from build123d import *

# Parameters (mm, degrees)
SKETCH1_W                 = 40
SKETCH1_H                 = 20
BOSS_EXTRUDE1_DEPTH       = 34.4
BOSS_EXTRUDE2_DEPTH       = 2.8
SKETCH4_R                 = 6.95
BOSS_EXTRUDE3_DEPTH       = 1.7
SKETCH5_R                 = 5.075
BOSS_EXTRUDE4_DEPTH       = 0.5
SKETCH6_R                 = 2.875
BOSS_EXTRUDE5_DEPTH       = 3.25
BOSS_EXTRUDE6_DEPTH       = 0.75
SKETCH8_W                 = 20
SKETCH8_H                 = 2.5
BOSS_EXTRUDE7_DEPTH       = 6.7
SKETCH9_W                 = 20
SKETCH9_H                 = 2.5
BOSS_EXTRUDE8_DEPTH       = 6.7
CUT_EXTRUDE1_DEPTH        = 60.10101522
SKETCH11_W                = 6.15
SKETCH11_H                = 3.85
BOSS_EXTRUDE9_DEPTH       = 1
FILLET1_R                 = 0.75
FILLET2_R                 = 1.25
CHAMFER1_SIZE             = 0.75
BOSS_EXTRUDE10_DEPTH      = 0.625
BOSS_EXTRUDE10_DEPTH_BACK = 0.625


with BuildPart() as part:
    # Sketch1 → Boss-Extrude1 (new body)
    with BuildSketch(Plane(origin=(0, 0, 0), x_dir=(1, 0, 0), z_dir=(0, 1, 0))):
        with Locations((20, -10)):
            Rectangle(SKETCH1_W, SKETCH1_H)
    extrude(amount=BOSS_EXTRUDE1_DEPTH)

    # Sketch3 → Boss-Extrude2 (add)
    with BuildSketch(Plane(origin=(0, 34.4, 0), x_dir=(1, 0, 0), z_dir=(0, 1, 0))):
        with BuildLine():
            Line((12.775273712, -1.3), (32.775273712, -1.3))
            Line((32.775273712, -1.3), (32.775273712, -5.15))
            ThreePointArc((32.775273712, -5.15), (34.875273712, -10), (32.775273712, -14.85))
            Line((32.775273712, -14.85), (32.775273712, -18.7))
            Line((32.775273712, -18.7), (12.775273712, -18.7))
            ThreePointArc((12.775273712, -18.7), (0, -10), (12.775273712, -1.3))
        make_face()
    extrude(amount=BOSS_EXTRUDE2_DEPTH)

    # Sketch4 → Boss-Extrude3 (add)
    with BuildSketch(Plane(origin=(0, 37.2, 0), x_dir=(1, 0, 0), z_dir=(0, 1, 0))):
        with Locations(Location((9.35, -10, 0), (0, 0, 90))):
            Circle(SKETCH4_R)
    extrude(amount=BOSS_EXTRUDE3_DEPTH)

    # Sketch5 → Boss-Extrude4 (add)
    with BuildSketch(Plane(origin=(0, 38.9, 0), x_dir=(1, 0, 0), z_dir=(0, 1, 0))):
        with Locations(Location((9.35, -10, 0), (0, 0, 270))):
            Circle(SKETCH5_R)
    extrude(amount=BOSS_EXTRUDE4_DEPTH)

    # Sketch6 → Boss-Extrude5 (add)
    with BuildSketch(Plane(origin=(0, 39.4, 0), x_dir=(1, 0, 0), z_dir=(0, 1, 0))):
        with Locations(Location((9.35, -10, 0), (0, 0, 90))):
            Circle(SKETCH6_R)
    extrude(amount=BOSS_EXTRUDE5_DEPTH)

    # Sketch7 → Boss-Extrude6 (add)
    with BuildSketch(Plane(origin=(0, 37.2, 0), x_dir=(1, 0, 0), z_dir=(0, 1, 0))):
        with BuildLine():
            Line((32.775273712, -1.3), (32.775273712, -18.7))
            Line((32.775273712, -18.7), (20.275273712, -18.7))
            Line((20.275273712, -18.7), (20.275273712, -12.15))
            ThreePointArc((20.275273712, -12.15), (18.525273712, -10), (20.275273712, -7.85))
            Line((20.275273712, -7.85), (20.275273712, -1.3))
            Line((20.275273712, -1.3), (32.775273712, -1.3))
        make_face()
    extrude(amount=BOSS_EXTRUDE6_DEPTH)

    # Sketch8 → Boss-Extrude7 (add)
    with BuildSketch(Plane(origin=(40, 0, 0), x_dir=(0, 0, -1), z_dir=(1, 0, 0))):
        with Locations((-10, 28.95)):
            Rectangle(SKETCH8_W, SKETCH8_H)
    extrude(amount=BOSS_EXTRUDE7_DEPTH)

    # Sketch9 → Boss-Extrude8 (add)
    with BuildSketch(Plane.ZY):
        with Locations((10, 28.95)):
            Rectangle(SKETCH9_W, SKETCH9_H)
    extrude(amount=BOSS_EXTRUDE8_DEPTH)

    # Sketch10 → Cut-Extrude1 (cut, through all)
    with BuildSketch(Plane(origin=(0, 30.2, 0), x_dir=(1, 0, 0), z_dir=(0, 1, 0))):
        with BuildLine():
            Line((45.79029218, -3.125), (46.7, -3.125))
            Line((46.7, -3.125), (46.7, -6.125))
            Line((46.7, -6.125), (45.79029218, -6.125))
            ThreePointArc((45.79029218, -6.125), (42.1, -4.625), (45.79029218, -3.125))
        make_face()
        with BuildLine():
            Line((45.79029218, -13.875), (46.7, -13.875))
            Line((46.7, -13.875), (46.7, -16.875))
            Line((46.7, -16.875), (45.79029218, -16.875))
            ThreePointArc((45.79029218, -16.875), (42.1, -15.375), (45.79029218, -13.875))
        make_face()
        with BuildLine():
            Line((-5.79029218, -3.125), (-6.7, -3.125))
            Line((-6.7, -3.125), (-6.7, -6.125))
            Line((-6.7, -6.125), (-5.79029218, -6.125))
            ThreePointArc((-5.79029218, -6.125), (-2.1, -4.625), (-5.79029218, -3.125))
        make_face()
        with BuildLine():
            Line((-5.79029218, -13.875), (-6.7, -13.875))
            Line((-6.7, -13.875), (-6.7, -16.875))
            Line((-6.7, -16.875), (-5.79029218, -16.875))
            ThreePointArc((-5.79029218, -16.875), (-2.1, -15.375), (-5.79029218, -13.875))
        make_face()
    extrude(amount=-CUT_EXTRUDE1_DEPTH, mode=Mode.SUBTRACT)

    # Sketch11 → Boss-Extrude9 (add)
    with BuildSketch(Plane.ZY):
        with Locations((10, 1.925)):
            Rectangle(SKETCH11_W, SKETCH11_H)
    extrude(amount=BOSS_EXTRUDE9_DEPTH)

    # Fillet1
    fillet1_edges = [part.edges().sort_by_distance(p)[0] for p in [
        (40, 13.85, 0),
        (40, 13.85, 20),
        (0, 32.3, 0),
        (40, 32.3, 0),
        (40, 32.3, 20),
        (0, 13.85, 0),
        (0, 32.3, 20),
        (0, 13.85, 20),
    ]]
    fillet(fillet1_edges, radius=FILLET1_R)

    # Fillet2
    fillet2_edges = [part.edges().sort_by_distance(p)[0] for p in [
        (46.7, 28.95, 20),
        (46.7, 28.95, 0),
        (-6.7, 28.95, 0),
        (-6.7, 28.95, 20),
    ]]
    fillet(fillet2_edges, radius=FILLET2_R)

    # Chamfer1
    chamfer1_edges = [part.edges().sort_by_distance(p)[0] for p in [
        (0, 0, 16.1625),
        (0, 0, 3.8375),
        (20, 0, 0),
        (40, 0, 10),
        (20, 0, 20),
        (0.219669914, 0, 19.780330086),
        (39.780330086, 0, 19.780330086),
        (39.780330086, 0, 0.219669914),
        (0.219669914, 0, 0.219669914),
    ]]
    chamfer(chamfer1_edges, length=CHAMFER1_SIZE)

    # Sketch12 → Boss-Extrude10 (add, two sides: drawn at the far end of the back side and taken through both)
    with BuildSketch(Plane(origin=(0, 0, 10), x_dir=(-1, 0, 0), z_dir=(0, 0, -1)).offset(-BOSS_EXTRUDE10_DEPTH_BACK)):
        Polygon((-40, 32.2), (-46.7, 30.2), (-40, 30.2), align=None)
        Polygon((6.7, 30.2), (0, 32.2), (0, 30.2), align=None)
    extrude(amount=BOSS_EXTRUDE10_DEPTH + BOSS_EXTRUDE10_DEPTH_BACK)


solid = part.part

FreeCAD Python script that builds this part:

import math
import FreeCAD as App
import Part
import Sketcher
from FreeCAD import Vector
Q = App.Units.Quantity


def edges_at(feature, points):
    """Names of the edges that pass closest to the given points."""
    edges = feature.Shape.Edges
    near = lambda p: min(range(len(edges)), key=lambda i: edges[i].distToShape(Part.Vertex(*p))[0])
    return sorted({f"Edge{near(p) + 1}" for p in points})


def add_polygon(sketch, points):
    """Adds a closed chain of lines whose ends are joined by coincident constraints."""
    first, n = sketch.GeometryCount, len(points)
    for a, b in zip(points, points[1:] + points[:1]):
        sketch.addGeometry(Part.LineSegment(App.Vector(*a, 0), App.Vector(*b, 0)), False)
    for i in range(n):
        sketch.addConstraint(Sketcher.Constraint("Coincident", first + i, 2, first + (i + 1) % n, 1))

doc = App.newDocument("Part")
params = doc.addObject("Spreadsheet::Sheet", "Params")
for row, (alias, value) in enumerate([
    ("sketch1_width", "40 mm"),
    ("sketch1_height", "20 mm"),
    ("pad1_length", "34.4 mm"),
    ("sketch2_width", "20 mm"),
    ("sketch2_radius", "9.35 mm"),
    ("sketch2_height", "3.85 mm"),
    ("pad2_length", "2.8 mm"),
    ("sketch3_diameter", "13.9 mm"),
    ("pad3_length", "1.7 mm"),
    ("sketch4_diameter", "10.15 mm"),
    ("pad4_length", "0.5 mm"),
    ("sketch5_diameter", "5.75 mm"),
    ("pad5_length", "3.25 mm"),
    ("sketch6_width", "12.5 mm"),
    ("sketch6_height", "17.4 mm"),
    ("sketch6_height2", "6.55 mm"),
    ("pad6_length", "0.75 mm"),
    ("sketch7_height", "20 mm"),
    ("sketch7_width", "2.5 mm"),
    ("pad7_length", "6.7 mm"),
    ("sketch8_height", "20 mm"),
    ("sketch8_width", "2.5 mm"),
    ("pad8_length", "6.7 mm"),
    ("sketch9_height", "3 mm"),
    ("sketch9_radius", "2.15 mm"),
    ("sketch10_width", "3.85 mm"),
    ("sketch10_height", "6.15 mm"),
    ("pad9_length", "1 mm"),
    ("fillet_radius", "0.75 mm"),
    ("fillet2_radius", "1.25 mm"),
    ("chamfer_size", "0.75 mm"),
    ("sketch11_height", "2 mm"),
    ("sketch11_width", "6.7 mm"),
    ("pad10_length", "0.625 mm"),
    ("pad10_length2", "0.625 mm"),
], start=1):
    params.set(f"A{row}", alias)
    params.set(f"B{row}", "=" + value)
    params.setAlias(f"B{row}", alias)

body = doc.addObject("PartDesign::Body", "Body")

sketch1 = body.newObject("Sketcher::SketchObject", "Sketch")
sketch1.AttachmentSupport = (doc.getObject("XZ_Plane"), [""])
sketch1.MapMode = "FlatFace"
add_polygon(sketch1, [(0, 0), (0, 20), (40, 20), (40, 0)])
sketch1.addConstraint([
    Sketcher.Constraint("Vertical", 0),
    Sketcher.Constraint("Horizontal", 1),
    Sketcher.Constraint("Vertical", 2),
    Sketcher.Constraint("Horizontal", 3),
    Sketcher.Constraint("Coincident", 3, 2, -1, 1),
    Sketcher.Constraint("DistanceX", 1, 1, 1, 2, Q("40 mm")),
    Sketcher.Constraint("DistanceY", 0, 1, 0, 2, Q("20 mm")),
])
sketch1.setExpression("Constraints[9]", "Params.sketch1_width")
sketch1.setExpression("Constraints[10]", "Params.sketch1_height")
pad1 = body.newObject("PartDesign::Pad", "Pad")
pad1.Profile = sketch1
pad1.setExpression("Length", "Params.pad1_length")
pad1.Reversed = True

sketch2 = body.newObject("Sketcher::SketchObject", "Sketch001")
sketch2.AttachmentSupport = (doc.getObject("XZ_Plane"), [""])
sketch2.MapMode = "FlatFace"
sketch2.AttachmentOffset = App.Placement(Vector(0, 0, -34.4), App.Rotation())
sketch2.addGeometry([
    Part.LineSegment(Vector(32.775274, 1.3, 0), Vector(12.775274, 1.3, 0)),
    Part.ArcOfCircle(Part.Circle(Vector(9.35, 10, 0), Vector(0, 0, 1), 9.35), math.radians(68.509963), math.radians(291.490037)),
    Part.LineSegment(Vector(12.775274, 18.7, 0), Vector(32.775274, 18.7, 0)),
    Part.LineSegment(Vector(32.775274, 18.7, 0), Vector(32.775274, 14.85, 0)),
    Part.ArcOfCircle(Part.Circle(Vector(28.224678, 10, 0), Vector(0, 0, 1), 6.650595), math.radians(-46.824228), math.radians(46.824228)),
    Part.LineSegment(Vector(32.775274, 5.15, 0), Vector(32.775274, 1.3, 0)),
], False)
sketch2.addConstraint([
    Sketcher.Constraint("Coincident", 0, 2, 1, 2),
    Sketcher.Constraint("Coincident", 1, 1, 2, 1),
    Sketcher.Constraint("Coincident", 2, 2, 3, 1),
    Sketcher.Constraint("Coincident", 3, 2, 4, 2),
    Sketcher.Constraint("Coincident", 4, 1, 5, 1),
    Sketcher.Constraint("Coincident", 5, 2, 0, 1),
    Sketcher.Constraint("Horizontal", 0),
    Sketcher.Constraint("Horizontal", 2),
    Sketcher.Constraint("Vertical", 3),
    Sketcher.Constraint("Vertical", 5),
    Sketcher.Constraint("Horizontal", 1, 3, 4, 3),
    Sketcher.Constraint("Vertical", 0, 2, 1, 1),
    Sketcher.Constraint("Vertical", 3, 2, 4, 1),
    Sketcher.Constraint("DistanceX", 0, 2, 0, 1, Q("20 mm")),
    Sketcher.Constraint("Radius", 1, Q("9.35 mm")),
    Sketcher.Constraint("DistanceY", -1, 1, 1, 3, Q("10 mm")),
    Sketcher.Constraint("DistanceY", 3, 2, 3, 1, Q("3.85 mm")),
    Sketcher.Constraint("DistanceY", -1, 1, 0, 2, Q("1.3 mm")),
    Sketcher.Constraint("DistanceX", -1, 1, 1, 3, Q("9.35 mm")),
    Sketcher.Constraint("Radius", 4, Q("6.650595 mm")),
])
sketch2.setExpression("Constraints[13]", "Params.sketch2_width")
sketch2.setExpression("Constraints[14]", "Params.sketch2_radius")
sketch2.setExpression("Constraints[16]", "Params.sketch2_height")
pad2 = body.newObject("PartDesign::Pad", "Pad001")
pad2.Profile = sketch2
pad2.setExpression("Length", "Params.pad2_length")
pad2.Reversed = True

sketch3 = body.newObject("Sketcher::SketchObject", "Sketch002")
sketch3.AttachmentSupport = (doc.getObject("XZ_Plane"), [""])
sketch3.MapMode = "FlatFace"
sketch3.AttachmentOffset = App.Placement(Vector(0, 0, -37.2), App.Rotation())
sketch3.addGeometry(Part.Circle(Vector(9.35, 10, 0), Vector(0, 0, 1), 6.95), False)
sketch3.addConstraint([
    Sketcher.Constraint("Diameter", 0, Q("13.9 mm")),
    Sketcher.Constraint("DistanceY", -1, 1, 0, 3, Q("10 mm")),
    Sketcher.Constraint("DistanceX", -1, 1, 0, 3, Q("9.35 mm")),
])
sketch3.setExpression("Constraints[0]", "Params.sketch3_diameter")
pad3 = body.newObject("PartDesign::Pad", "Pad002")
pad3.Profile = sketch3
pad3.setExpression("Length", "Params.pad3_length")
pad3.Reversed = True

sketch4 = body.newObject("Sketcher::SketchObject", "Sketch003")
sketch4.AttachmentSupport = (doc.getObject("XZ_Plane"), [""])
sketch4.MapMode = "FlatFace"
sketch4.AttachmentOffset = App.Placement(Vector(0, 0, -38.9), App.Rotation())
sketch4.addGeometry(Part.Circle(Vector(9.35, 10, 0), Vector(0, 0, 1), 5.075), False)
sketch4.addConstraint([
    Sketcher.Constraint("Diameter", 0, Q("10.15 mm")),
    Sketcher.Constraint("DistanceY", -1, 1, 0, 3, Q("10 mm")),
    Sketcher.Constraint("DistanceX", -1, 1, 0, 3, Q("9.35 mm")),
])
sketch4.setExpression("Constraints[0]", "Params.sketch4_diameter")
pad4 = body.newObject("PartDesign::Pad", "Pad003")
pad4.Profile = sketch4
pad4.setExpression("Length", "Params.pad4_length")
pad4.Reversed = True

sketch5 = body.newObject("Sketcher::SketchObject", "Sketch004")
sketch5.AttachmentSupport = (doc.getObject("XZ_Plane"), [""])
sketch5.MapMode = "FlatFace"
sketch5.AttachmentOffset = App.Placement(Vector(0, 0, -39.4), App.Rotation())
sketch5.addGeometry(Part.Circle(Vector(9.35, 10, 0), Vector(0, 0, 1), 2.875), False)
sketch5.addConstraint([
    Sketcher.Constraint("Diameter", 0, Q("5.75 mm")),
    Sketcher.Constraint("DistanceY", -1, 1, 0, 3, Q("10 mm")),
    Sketcher.Constraint("DistanceX", -1, 1, 0, 3, Q("9.35 mm")),
])
sketch5.setExpression("Constraints[0]", "Params.sketch5_diameter")
pad5 = body.newObject("PartDesign::Pad", "Pad004")
pad5.Profile = sketch5
pad5.setExpression("Length", "Params.pad5_length")
pad5.Reversed = True

sketch6 = body.newObject("Sketcher::SketchObject", "Sketch005")
sketch6.AttachmentSupport = (doc.getObject("XZ_Plane"), [""])
sketch6.MapMode = "FlatFace"
sketch6.AttachmentOffset = App.Placement(Vector(0, 0, -37.2), App.Rotation())
sketch6.addGeometry([
    Part.LineSegment(Vector(32.775274, 18.7, 0), Vector(32.775274, 1.3, 0)),
    Part.LineSegment(Vector(32.775274, 1.3, 0), Vector(20.275274, 1.3, 0)),
    Part.LineSegment(Vector(20.275274, 1.3, 0), Vector(20.275274, 7.85, 0)),
    Part.ArcOfCircle(Part.Circle(Vector(20.720988, 10, 0), Vector(0, 0, 1), 2.195714), math.radians(101.712027), math.radians(258.287973)),
    Part.LineSegment(Vector(20.275274, 12.15, 0), Vector(20.275274, 18.7, 0)),
    Part.LineSegment(Vector(20.275274, 18.7, 0), Vector(32.775274, 18.7, 0)),
], False)
sketch6.addConstraint([
    Sketcher.Constraint("Coincident", 0, 2, 1, 1),
    Sketcher.Constraint("Coincident", 1, 2, 2, 1),
    Sketcher.Constraint("Coincident", 2, 2, 3, 2),
    Sketcher.Constraint("Coincident", 3, 1, 4, 1),
    Sketcher.Constraint("Coincident", 4, 2, 5, 1),
    Sketcher.Constraint("Coincident", 5, 2, 0, 1),
    Sketcher.Constraint("Vertical", 0),
    Sketcher.Constraint("Horizontal", 1),
    Sketcher.Constraint("Vertical", 2),
    Sketcher.Constraint("Vertical", 4),
    Sketcher.Constraint("Horizontal", 5),
    Sketcher.Constraint("Vertical", 2, 2, 3, 1),
    Sketcher.Constraint("Equal", 2, 4),
    Sketcher.Constraint("DistanceX", 1, 2, 1, 1, Q("12.5 mm")),
    Sketcher.Constraint("DistanceY", 0, 2, 0, 1, Q("17.4 mm")),
    Sketcher.Constraint("DistanceY", -1, 1, 3, 3, Q("10 mm")),
    Sketcher.Constraint("DistanceY", 2, 1, 2, 2, Q("6.55 mm")),
    Sketcher.Constraint("Radius", 3, Q("2.195714 mm")),
    Sketcher.Constraint("DistanceX", -1, 1, 3, 3, Q("20.720988 mm")),
])
sketch6.setExpression("Constraints[13]", "Params.sketch6_width")
sketch6.setExpression("Constraints[14]", "Params.sketch6_height")
sketch6.setExpression("Constraints[16]", "Params.sketch6_height2")
pad6 = body.newObject("PartDesign::Pad", "Pad005")
pad6.Profile = sketch6
pad6.setExpression("Length", "Params.pad6_length")
pad6.Reversed = True

sketch7 = body.newObject("Sketcher::SketchObject", "Sketch006")
sketch7.AttachmentSupport = (doc.getObject("YZ_Plane"), [""])
sketch7.MapMode = "FlatFace"
sketch7.AttachmentOffset = App.Placement(Vector(0, 0, 40), App.Rotation())
add_polygon(sketch7, [(30.2, 20), (27.7, 20), (27.7, 0), (30.2, 0)])
sketch7.addConstraint([
    Sketcher.Constraint("Horizontal", 0),
    Sketcher.Constraint("Vertical", 1),
    Sketcher.Constraint("Horizontal", 2),
    Sketcher.Constraint("Vertical", 3),
    Sketcher.Constraint("PointOnObject", 1, 2, -1),
    Sketcher.Constraint("DistanceY", 1, 2, 1, 1, Q("20 mm")),
    Sketcher.Constraint("DistanceX", 0, 2, 0, 1, Q("2.5 mm")),
    Sketcher.Constraint("DistanceX", -1, 1, 0, 2, Q("27.7 mm")),
])
sketch7.setExpression("Constraints[9]", "Params.sketch7_height")
sketch7.setExpression("Constraints[10]", "Params.sketch7_width")
pad7 = body.newObject("PartDesign::Pad", "Pad006")
pad7.Profile = sketch7
pad7.setExpression("Length", "Params.pad7_length")

sketch8 = body.newObject("Sketcher::SketchObject", "Sketch007")
sketch8.AttachmentSupport = (doc.getObject("YZ_Plane"), [""])
sketch8.MapMode = "FlatFace"
add_polygon(sketch8, [(30.2, 0), (27.7, 0), (27.7, 20), (30.2, 20)])
sketch8.addConstraint([
    Sketcher.Constraint("Horizontal", 0),
    Sketcher.Constraint("Vertical", 1),
    Sketcher.Constraint("Horizontal", 2),
    Sketcher.Constraint("Vertical", 3),
    Sketcher.Constraint("PointOnObject", 0, 2, -1),
    Sketcher.Constraint("DistanceY", 1, 1, 1, 2, Q("20 mm")),
    Sketcher.Constraint("DistanceX", 0, 2, 0, 1, Q("2.5 mm")),
    Sketcher.Constraint("DistanceX", -1, 1, 0, 2, Q("27.7 mm")),
])
sketch8.setExpression("Constraints[9]", "Params.sketch8_height")
sketch8.setExpression("Constraints[10]", "Params.sketch8_width")
pad8 = body.newObject("PartDesign::Pad", "Pad007")
pad8.Profile = sketch8
pad8.setExpression("Length", "Params.pad8_length")
pad8.Reversed = True

sketch9 = body.newObject("Sketcher::SketchObject", "Sketch008")
sketch9.AttachmentSupport = (doc.getObject("XZ_Plane"), [""])
sketch9.MapMode = "FlatFace"
sketch9.AttachmentOffset = App.Placement(Vector(0, 0, -30.2), App.Rotation())
sketch9.addGeometry([
    Part.LineSegment(Vector(46.7, 3.125, 0), Vector(45.790292, 3.125, 0)),
    Part.ArcOfCircle(Part.Circle(Vector(44.25, 4.625, 0), Vector(0, 0, 1), 2.15), math.radians(44.240719), math.radians(315.759281)),
    Part.LineSegment(Vector(45.790292, 6.125, 0), Vector(46.7, 6.125, 0)),
    Part.LineSegment(Vector(46.7, 6.125, 0), Vector(46.7, 3.125, 0)),
    Part.LineSegment(Vector(46.7, 13.875, 0), Vector(45.790292, 13.875, 0)),
    Part.ArcOfCircle(Part.Circle(Vector(44.25, 15.375, 0), Vector(0, 0, 1), 2.15), math.radians(44.240719), math.radians(315.759281)),
    Part.LineSegment(Vector(45.790292, 16.875, 0), Vector(46.7, 16.875, 0)),
    Part.LineSegment(Vector(46.7, 16.875, 0), Vector(46.7, 13.875, 0)),
    Part.LineSegment(Vector(-5.790292, 3.125, 0), Vector(-6.7, 3.125, 0)),
    Part.LineSegment(Vector(-6.7, 3.125, 0), Vector(-6.7, 6.125, 0)),
    Part.LineSegment(Vector(-6.7, 6.125, 0), Vector(-5.790292, 6.125, 0)),
    Part.ArcOfCircle(Part.Circle(Vector(-4.25, 4.625, 0), Vector(0, 0, 1), 2.15), math.radians(-135.759281), math.radians(135.759281)),
    Part.LineSegment(Vector(-5.790292, 13.875, 0), Vector(-6.7, 13.875, 0)),
    Part.LineSegment(Vector(-6.7, 13.875, 0), Vector(-6.7, 16.875, 0)),
    Part.LineSegment(Vector(-6.7, 16.875, 0), Vector(-5.790292, 16.875, 0)),
    Part.ArcOfCircle(Part.Circle(Vector(-4.25, 15.375, 0), Vector(0, 0, 1), 2.15), math.radians(-135.759281), math.radians(135.759281)),
], False)
sketch9.addConstraint([
    Sketcher.Constraint("Coincident", 0, 2, 1, 2),
    Sketcher.Constraint("Coincident", 1, 1, 2, 1),
    Sketcher.Constraint("Coincident", 2, 2, 3, 1),
    Sketcher.Constraint("Coincident", 3, 2, 0, 1),
    Sketcher.Constraint("Coincident", 4, 2, 5, 2),
    Sketcher.Constraint("Coincident", 5, 1, 6, 1),
    Sketcher.Constraint("Coincident", 6, 2, 7, 1),
    Sketcher.Constraint("Coincident", 7, 2, 4, 1),
    Sketcher.Constraint("Coincident", 8, 2, 9, 1),
    Sketcher.Constraint("Coincident", 9, 2, 10, 1),
    Sketcher.Constraint("Coincident", 10, 2, 11, 2),
    Sketcher.Constraint("Coincident", 11, 1, 8, 1),
    Sketcher.Constraint("Coincident", 12, 2, 13, 1),
    Sketcher.Constraint("Coincident", 13, 2, 14, 1),
    Sketcher.Constraint("Coincident", 14, 2, 15, 2),
    Sketcher.Constraint("Coincident", 15, 1, 12, 1),
    Sketcher.Constraint("Horizontal", 0),
    Sketcher.Constraint("Horizontal", 2),
    Sketcher.Constraint("Vertical", 3),
    Sketcher.Constraint("Horizontal", 4),
    Sketcher.Constraint("Horizontal", 6),
    Sketcher.Constraint("Vertical", 7),
    Sketcher.Constraint("Horizontal", 8),
    Sketcher.Constraint("Vertical", 9),
    Sketcher.Constraint("Horizontal", 10),
    Sketcher.Constraint("Horizontal", 12),
    Sketcher.Constraint("Vertical", 13),
    Sketcher.Constraint("Horizontal", 14),
    Sketcher.Constraint("Equal", 1, 5),
    Sketcher.Constraint("Equal", 5, 11),
    Sketcher.Constraint("Equal", 11, 15),
    Sketcher.Constraint("Horizontal", 1, 3, 11, 3),
    Sketcher.Constraint("Horizontal", 5, 3, 15, 3),
    Sketcher.Constraint("Horizontal", 3, 2, 8, 2),
    Sketcher.Constraint("Horizontal", 2, 2, 9, 2),
    Sketcher.Constraint("Horizontal", 7, 2, 12, 2),
    Sketcher.Constraint("Horizontal", 6, 2, 13, 2),
    Sketcher.Constraint("Vertical", 1, 3, 5, 3),
    Sketcher.Constraint("Vertical", 11, 3, 15, 3),
    Sketcher.Constraint("Vertical", 0, 2, 1, 1),
    Sketcher.Constraint("Vertical", 1, 1, 4, 2),
    Sketcher.Constraint("Vertical", 4, 2, 5, 1),
    Sketcher.Constraint("Vertical", 3, 2, 6, 2),
    Sketcher.Constraint("Vertical", 9, 2, 12, 2),
    Sketcher.Constraint("Equal", 6, 8),
    Sketcher.Constraint("DistanceY", 3, 2, 3, 1, Q("3 mm")),
    Sketcher.Constraint("Radius", 1, Q("2.15 mm")),
    Sketcher.Constraint("DistanceX", -1, 1, 2, 2, Q("46.7 mm")),
    Sketcher.Constraint("DistanceX", 8, 2, -1, 1, Q("6.7 mm")),
    Sketcher.Constraint("DistanceX", 11, 3, 1, 3, Q("48.5 mm")),
    Sketcher.Constraint("DistanceY", 1, 3, 5, 3, Q("10.75 mm")),
    Sketcher.Constraint("DistanceY", -1, 1, 1, 3, Q("4.625 mm")),
])
sketch9.setExpression("Constraints[45]", "Params.sketch9_height")
sketch9.setExpression("Constraints[46]", "Params.sketch9_radius")
pocket1 = body.newObject("PartDesign::Pocket", "Pocket")
pocket1.Profile = sketch9
pocket1.Type = "ThroughAll"
pocket1.Reversed = True

sketch10 = body.newObject("Sketcher::SketchObject", "Sketch009")
sketch10.AttachmentSupport = (doc.getObject("YZ_Plane"), [""])
sketch10.MapMode = "FlatFace"
add_polygon(sketch10, [(3.85, 6.925), (0, 6.925), (0, 13.075), (3.85, 13.075)])
sketch10.addConstraint([
    Sketcher.Constraint("Horizontal", 0),
    Sketcher.Constraint("Vertical", 1),
    Sketcher.Constraint("Horizontal", 2),
    Sketcher.Constraint("Vertical", 3),
    Sketcher.Constraint("PointOnObject", 0, 2, -2),
    Sketcher.Constraint("DistanceX", 0, 2, 0, 1, Q("3.85 mm")),
    Sketcher.Constraint("DistanceY", 1, 1, 1, 2, Q("6.15 mm")),
    Sketcher.Constraint("DistanceY", -1, 1, 0, 2, Q("6.925 mm")),
])
sketch10.setExpression("Constraints[9]", "Params.sketch10_width")
sketch10.setExpression("Constraints[10]", "Params.sketch10_height")
pad9 = body.newObject("PartDesign::Pad", "Pad008")
pad9.Profile = sketch10
pad9.setExpression("Length", "Params.pad9_length")
pad9.Reversed = True
doc.recompute()

fillet = body.newObject("PartDesign::Fillet", "Fillet")
fillet.Base = (pad9, edges_at(pad9, [
    (40, 13.85, 0),
    (40, 13.85, 20),
    (0, 32.3, 0),
    (40, 32.3, 0),
    (40, 32.3, 20),
    (0, 13.85, 0),
    (0, 32.3, 20),
    (0, 13.85, 20),
]))
fillet.setExpression("Radius", "Params.fillet_radius")
doc.recompute()

fillet2 = body.newObject("PartDesign::Fillet", "Fillet001")
fillet2.Base = (fillet, edges_at(fillet, [
    (46.7, 28.95, 20),
    (46.7, 28.95, 0),
    (-6.7, 28.95, 0),
    (-6.7, 28.95, 20),
]))
fillet2.setExpression("Radius", "Params.fillet2_radius")
doc.recompute()

chamfer = body.newObject("PartDesign::Chamfer", "Chamfer")
chamfer.Base = (fillet2, edges_at(fillet2, [
    (0, 0, 16.163),
    (0, 0, 3.837),
    (20, 0, 0),
    (40, 0, 10),
    (20, 0, 20),
    (0.22, 0, 19.78),
    (39.78, 0, 19.78),
    (39.78, 0, 0.22),
    (0.22, 0, 0.22),
]))
chamfer.setExpression("Size", "Params.chamfer_size")

sketch11 = body.newObject("Sketcher::SketchObject", "Sketch010")
sketch11.AttachmentSupport = (doc.getObject("XY_Plane"), [""])
sketch11.MapMode = "FlatFace"
sketch11.AttachmentOffset = App.Placement(Vector(0, 0, 10), App.Rotation())
add_polygon(sketch11, [(40, 32.2), (46.7, 30.2), (40, 30.2)])
add_polygon(sketch11, [(-6.7, 30.2), (0, 32.2), (0, 30.2)])
sketch11.addConstraint([
    Sketcher.Constraint("Horizontal", 1),
    Sketcher.Constraint("Vertical", 2),
    Sketcher.Constraint("Vertical", 4),
    Sketcher.Constraint("Horizontal", 5),
    Sketcher.Constraint("PointOnObject", 3, 2, -2),
    Sketcher.Constraint("Horizontal", 2, 2, 3, 2),
    Sketcher.Constraint("Horizontal", 1, 2, 4, 2),
    Sketcher.Constraint("Equal", 1, 5),
    Sketcher.Constraint("DistanceY", 2, 1, 2, 2, Q("2 mm")),
    Sketcher.Constraint("DistanceX", 1, 2, 1, 1, Q("6.7 mm")),
    Sketcher.Constraint("DistanceX", -1, 1, 1, 2, Q("40 mm")),
    Sketcher.Constraint("DistanceY", -1, 1, 0, 2, Q("30.2 mm")),
])
sketch11.setExpression("Constraints[14]", "Params.sketch11_height")
sketch11.setExpression("Constraints[15]", "Params.sketch11_width")
pad10 = body.newObject("PartDesign::Pad", "Pad009")
pad10.Profile = sketch11
pad10.Type = "TwoLengths"
pad10.setExpression("Length", "Params.pad10_length")
pad10.setExpression("Length2", "Params.pad10_length2")
pad10.Reversed = True

doc.recompute()
